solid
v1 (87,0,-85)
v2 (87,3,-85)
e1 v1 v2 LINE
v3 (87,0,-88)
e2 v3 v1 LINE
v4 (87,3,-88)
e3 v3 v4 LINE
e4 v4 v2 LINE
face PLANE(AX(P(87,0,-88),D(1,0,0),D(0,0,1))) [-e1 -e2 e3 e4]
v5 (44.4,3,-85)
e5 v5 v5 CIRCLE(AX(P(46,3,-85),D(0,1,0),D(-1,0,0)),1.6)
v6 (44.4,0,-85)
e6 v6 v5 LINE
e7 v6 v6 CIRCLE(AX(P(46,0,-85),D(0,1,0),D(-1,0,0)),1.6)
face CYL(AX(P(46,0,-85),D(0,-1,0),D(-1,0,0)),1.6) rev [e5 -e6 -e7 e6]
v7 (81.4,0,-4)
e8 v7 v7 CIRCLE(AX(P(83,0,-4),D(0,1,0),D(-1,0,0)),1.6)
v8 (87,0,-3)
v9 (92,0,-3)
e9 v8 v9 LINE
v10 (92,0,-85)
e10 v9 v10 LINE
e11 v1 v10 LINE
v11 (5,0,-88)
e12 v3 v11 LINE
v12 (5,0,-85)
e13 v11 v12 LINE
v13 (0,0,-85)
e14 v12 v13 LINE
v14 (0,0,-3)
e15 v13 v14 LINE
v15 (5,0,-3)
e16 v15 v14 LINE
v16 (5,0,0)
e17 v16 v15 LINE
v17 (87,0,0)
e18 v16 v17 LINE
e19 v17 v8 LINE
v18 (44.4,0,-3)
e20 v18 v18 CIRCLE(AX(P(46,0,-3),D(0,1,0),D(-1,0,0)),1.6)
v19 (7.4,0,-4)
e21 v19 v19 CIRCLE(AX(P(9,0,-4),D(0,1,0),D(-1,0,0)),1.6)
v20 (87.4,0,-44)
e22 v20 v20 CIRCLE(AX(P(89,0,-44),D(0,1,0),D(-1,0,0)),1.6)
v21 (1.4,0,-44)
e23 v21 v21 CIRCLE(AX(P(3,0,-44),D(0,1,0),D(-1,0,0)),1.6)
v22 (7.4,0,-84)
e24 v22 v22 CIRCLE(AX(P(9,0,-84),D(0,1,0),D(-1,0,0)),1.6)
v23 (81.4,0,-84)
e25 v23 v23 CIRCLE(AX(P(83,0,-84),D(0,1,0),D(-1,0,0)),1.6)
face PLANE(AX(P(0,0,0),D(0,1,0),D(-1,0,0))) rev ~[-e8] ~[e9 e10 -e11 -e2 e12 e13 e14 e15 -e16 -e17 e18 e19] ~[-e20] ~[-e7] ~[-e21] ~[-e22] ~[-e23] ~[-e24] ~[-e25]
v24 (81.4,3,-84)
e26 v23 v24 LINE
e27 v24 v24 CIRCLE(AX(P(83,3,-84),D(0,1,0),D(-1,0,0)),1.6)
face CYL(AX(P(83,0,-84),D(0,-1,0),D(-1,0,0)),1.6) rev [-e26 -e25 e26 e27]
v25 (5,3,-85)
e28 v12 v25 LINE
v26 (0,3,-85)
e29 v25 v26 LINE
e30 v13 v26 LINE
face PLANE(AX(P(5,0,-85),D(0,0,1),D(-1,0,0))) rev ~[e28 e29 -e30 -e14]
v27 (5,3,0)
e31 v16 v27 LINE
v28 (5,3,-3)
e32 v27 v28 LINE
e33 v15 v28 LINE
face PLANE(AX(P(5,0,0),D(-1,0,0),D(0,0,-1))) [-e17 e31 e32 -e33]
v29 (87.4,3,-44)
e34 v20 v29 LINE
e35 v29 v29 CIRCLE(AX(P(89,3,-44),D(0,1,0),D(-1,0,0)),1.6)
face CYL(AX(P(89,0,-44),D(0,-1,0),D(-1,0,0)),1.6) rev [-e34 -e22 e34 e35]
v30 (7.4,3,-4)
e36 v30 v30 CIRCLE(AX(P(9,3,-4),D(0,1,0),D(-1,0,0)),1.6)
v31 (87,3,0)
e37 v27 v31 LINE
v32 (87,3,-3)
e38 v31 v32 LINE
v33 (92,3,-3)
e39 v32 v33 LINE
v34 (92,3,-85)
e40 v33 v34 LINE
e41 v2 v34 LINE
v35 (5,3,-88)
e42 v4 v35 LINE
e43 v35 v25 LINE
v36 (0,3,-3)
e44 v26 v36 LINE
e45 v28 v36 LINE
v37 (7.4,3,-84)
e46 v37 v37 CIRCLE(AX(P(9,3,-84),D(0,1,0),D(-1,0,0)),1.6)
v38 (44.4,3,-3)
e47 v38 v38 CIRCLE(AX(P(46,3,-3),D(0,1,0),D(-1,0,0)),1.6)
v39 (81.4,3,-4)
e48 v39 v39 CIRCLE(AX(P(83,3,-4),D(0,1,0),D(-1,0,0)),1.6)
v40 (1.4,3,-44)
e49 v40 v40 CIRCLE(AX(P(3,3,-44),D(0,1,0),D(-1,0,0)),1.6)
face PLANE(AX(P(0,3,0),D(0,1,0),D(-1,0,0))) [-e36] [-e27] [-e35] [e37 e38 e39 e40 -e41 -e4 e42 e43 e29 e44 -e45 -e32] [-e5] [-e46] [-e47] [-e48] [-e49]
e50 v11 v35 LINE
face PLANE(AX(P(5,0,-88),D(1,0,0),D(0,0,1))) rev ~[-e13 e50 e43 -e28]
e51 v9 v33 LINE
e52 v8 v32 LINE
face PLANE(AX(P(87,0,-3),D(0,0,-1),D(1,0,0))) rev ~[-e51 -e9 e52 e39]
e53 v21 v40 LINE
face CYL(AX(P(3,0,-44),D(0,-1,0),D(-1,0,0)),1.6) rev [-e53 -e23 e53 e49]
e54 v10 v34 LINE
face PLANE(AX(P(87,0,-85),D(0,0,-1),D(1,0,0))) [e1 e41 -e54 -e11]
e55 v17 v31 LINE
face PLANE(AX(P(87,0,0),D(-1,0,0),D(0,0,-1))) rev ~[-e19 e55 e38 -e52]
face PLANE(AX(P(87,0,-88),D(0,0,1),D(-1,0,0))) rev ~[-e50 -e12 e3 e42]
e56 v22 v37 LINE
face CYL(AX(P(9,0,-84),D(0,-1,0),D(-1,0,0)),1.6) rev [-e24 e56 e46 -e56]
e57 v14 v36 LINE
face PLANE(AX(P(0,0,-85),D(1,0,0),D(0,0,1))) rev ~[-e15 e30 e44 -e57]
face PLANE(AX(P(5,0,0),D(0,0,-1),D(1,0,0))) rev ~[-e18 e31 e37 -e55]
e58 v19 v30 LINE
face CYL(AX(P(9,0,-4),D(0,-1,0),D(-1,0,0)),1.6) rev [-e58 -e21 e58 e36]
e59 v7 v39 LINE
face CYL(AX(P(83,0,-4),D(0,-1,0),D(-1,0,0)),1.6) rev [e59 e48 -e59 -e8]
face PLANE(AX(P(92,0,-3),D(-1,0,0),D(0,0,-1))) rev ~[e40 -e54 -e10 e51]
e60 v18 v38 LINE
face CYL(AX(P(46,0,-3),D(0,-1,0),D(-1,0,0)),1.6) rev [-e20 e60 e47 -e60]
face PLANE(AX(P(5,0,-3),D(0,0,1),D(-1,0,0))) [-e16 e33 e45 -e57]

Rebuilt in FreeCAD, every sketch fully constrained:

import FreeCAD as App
import Part
import Sketcher


def add_polygon(sketch, points):
    """Adds a closed chain of lines whose ends are joined by coincident constraints."""
    first, n = sketch.GeometryCount, len(points)
    for a, b in zip(points, points[1:] + points[:1]):
        sketch.addGeometry(Part.LineSegment(App.Vector(*a, 0), App.Vector(*b, 0)), False)
    for i in range(n):
        sketch.addConstraint(Sketcher.Constraint("Coincident", first + i, 2, first + (i + 1) % n, 1))

doc = App.newDocument("Part")
body = doc.addObject("PartDesign::Body", "Body")

# Sketch on XZ plane
sketch1 = doc.addObject("Sketcher::SketchObject", "Sketch")
body.addObject(sketch1)
sketch1.AttachmentSupport = (doc.XZ_Plane, [""])
sketch1.MapMode = "FlatFace"
add_polygon(sketch1, [(5, -3), (5, 0), (87, 0), (87, -3), (92, -3), (92, -85), (87, -85), (87, -88), (5, -88), (5, -85), (0, -85), (0, -3)])  # lines 0-11
sketch1.addGeometry(Part.Circle(App.Vector(83, -84, 0), App.Vector(0, 0, 1), 1.6), False)  # 12
sketch1.addGeometry(Part.Circle(App.Vector(46, -85, 0), App.Vector(0, 0, 1), 1.6), False)  # 13
sketch1.addGeometry(Part.Circle(App.Vector(9, -84, 0), App.Vector(0, 0, 1), 1.6), False)  # 14
sketch1.addGeometry(Part.Circle(App.Vector(89, -44, 0), App.Vector(0, 0, 1), 1.6), False)  # 15
sketch1.addGeometry(Part.Circle(App.Vector(83, -4, 0), App.Vector(0, 0, 1), 1.6), False)  # 16
sketch1.addGeometry(Part.Circle(App.Vector(3, -44, 0), App.Vector(0, 0, 1), 1.6), False)  # 17
sketch1.addGeometry(Part.Circle(App.Vector(46, -3, 0), App.Vector(0, 0, 1), 1.6), False)  # 18
sketch1.addGeometry(Part.Circle(App.Vector(9, -4, 0), App.Vector(0, 0, 1), 1.6), False)  # 19
sketch1.addConstraint(Sketcher.Constraint("Vertical", 0))
sketch1.addConstraint(Sketcher.Constraint("Horizontal", 1))
sketch1.addConstraint(Sketcher.Constraint("Vertical", 2))
sketch1.addConstraint(Sketcher.Constraint("Horizontal", 3))
sketch1.addConstraint(Sketcher.Constraint("Vertical", 4))
sketch1.addConstraint(Sketcher.Constraint("Horizontal", 5))
sketch1.addConstraint(Sketcher.Constraint("Vertical", 6))
sketch1.addConstraint(Sketcher.Constraint("Horizontal", 7))
sketch1.addConstraint(Sketcher.Constraint("Vertical", 8))
sketch1.addConstraint(Sketcher.Constraint("Horizontal", 9))
sketch1.addConstraint(Sketcher.Constraint("Vertical", 10))
sketch1.addConstraint(Sketcher.Constraint("Horizontal", 11))
sketch1.addConstraint(Sketcher.Constraint("Equal", 12, 13))
sketch1.addConstraint(Sketcher.Constraint("Equal", 13, 14))
sketch1.addConstraint(Sketcher.Constraint("Equal", 14, 15))
sketch1.addConstraint(Sketcher.Constraint("Equal", 15, 16))
sketch1.addConstraint(Sketcher.Constraint("Equal", 16, 17))
sketch1.addConstraint(Sketcher.Constraint("Equal", 17, 18))
sketch1.addConstraint(Sketcher.Constraint("Equal", 18, 19))
sketch1.addConstraint(Sketcher.Constraint("PointOnObject", 0, 2, -1))
sketch1.addConstraint(Sketcher.Constraint("PointOnObject", 9, 2, -2))
sketch1.addConstraint(Sketcher.Constraint("Horizontal", 12, 3, 14, 3))
sketch1.addConstraint(Sketcher.Constraint("Horizontal", 15, 3, 17, 3))
sketch1.addConstraint(Sketcher.Constraint("Horizontal", 16, 3, 19, 3))
sketch1.addConstraint(Sketcher.Constraint("Horizontal", 18, 3, 2, 2))
sketch1.addConstraint(Sketcher.Constraint("Horizontal", 13, 3, 4, 2))
sketch1.addConstraint(Sketcher.Constraint("Horizontal", 5, 2, 8, 2))
sketch1.addConstraint(Sketcher.Constraint("Horizontal", 3, 2, 10, 2))
sketch1.addConstraint(Sketcher.Constraint("Vertical", 12, 3, 16, 3))
sketch1.addConstraint(Sketcher.Constraint("Vertical", 13, 3, 18, 3))
sketch1.addConstraint(Sketcher.Constraint("Vertical", 14, 3, 19, 3))
sketch1.addConstraint(Sketcher.Constraint("Vertical", 2, 2, 5, 2))
sketch1.addConstraint(Sketcher.Constraint("Vertical", 0, 2, 7, 2))
sketch1.addConstraint(Sketcher.Constraint("Equal", 5, 9))
sketch1.addConstraint(Sketcher.Constraint("Equal", 7, 4))
sketch1.addConstraint(Sketcher.Constraint("Equal", 2, 6))
sketch1.addConstraint(Sketcher.Constraint("Diameter", 12, 3.2))
sketch1.addConstraint(Sketcher.Constraint("DistanceX", 1, 1, 1, 2, 82.0))
sketch1.addConstraint(Sketcher.Constraint("DistanceX", 3, 1, 3, 2, 5.0))
sketch1.addConstraint(Sketcher.Constraint("DistanceY", 0, 1, 0, 2, 3.0))
sketch1.addConstraint(Sketcher.Constraint("DistanceX", -1, 1, 13, 3, 46.0))
sketch1.addConstraint(Sketcher.Constraint("DistanceX", -1, 1, 14, 3, 9.0))
sketch1.addConstraint(Sketcher.Constraint("DistanceY", 15, 3, -1, 1, 44.0))
sketch1.addConstraint(Sketcher.Constraint("DistanceY", 16, 3, -1, 1, 4.0))
sketch1.addConstraint(Sketcher.Constraint("DistanceX", -1, 1, 17, 3, 3.0))
sketch1.addConstraint(Sketcher.Constraint("DistanceX", 14, 3, 12, 3, 74.0))
sketch1.addConstraint(Sketcher.Constraint("DistanceX", 14, 3, 15, 3, 80.0))
sketch1.addConstraint(Sketcher.Constraint("DistanceY", 12, 3, 16, 3, 80.0))
pad1 = doc.addObject("PartDesign::Pad", "Pad")
body.addObject(pad1)
pad1.Profile = sketch1
pad1.Length = 3
pad1.Reversed = True

doc.recompute()
